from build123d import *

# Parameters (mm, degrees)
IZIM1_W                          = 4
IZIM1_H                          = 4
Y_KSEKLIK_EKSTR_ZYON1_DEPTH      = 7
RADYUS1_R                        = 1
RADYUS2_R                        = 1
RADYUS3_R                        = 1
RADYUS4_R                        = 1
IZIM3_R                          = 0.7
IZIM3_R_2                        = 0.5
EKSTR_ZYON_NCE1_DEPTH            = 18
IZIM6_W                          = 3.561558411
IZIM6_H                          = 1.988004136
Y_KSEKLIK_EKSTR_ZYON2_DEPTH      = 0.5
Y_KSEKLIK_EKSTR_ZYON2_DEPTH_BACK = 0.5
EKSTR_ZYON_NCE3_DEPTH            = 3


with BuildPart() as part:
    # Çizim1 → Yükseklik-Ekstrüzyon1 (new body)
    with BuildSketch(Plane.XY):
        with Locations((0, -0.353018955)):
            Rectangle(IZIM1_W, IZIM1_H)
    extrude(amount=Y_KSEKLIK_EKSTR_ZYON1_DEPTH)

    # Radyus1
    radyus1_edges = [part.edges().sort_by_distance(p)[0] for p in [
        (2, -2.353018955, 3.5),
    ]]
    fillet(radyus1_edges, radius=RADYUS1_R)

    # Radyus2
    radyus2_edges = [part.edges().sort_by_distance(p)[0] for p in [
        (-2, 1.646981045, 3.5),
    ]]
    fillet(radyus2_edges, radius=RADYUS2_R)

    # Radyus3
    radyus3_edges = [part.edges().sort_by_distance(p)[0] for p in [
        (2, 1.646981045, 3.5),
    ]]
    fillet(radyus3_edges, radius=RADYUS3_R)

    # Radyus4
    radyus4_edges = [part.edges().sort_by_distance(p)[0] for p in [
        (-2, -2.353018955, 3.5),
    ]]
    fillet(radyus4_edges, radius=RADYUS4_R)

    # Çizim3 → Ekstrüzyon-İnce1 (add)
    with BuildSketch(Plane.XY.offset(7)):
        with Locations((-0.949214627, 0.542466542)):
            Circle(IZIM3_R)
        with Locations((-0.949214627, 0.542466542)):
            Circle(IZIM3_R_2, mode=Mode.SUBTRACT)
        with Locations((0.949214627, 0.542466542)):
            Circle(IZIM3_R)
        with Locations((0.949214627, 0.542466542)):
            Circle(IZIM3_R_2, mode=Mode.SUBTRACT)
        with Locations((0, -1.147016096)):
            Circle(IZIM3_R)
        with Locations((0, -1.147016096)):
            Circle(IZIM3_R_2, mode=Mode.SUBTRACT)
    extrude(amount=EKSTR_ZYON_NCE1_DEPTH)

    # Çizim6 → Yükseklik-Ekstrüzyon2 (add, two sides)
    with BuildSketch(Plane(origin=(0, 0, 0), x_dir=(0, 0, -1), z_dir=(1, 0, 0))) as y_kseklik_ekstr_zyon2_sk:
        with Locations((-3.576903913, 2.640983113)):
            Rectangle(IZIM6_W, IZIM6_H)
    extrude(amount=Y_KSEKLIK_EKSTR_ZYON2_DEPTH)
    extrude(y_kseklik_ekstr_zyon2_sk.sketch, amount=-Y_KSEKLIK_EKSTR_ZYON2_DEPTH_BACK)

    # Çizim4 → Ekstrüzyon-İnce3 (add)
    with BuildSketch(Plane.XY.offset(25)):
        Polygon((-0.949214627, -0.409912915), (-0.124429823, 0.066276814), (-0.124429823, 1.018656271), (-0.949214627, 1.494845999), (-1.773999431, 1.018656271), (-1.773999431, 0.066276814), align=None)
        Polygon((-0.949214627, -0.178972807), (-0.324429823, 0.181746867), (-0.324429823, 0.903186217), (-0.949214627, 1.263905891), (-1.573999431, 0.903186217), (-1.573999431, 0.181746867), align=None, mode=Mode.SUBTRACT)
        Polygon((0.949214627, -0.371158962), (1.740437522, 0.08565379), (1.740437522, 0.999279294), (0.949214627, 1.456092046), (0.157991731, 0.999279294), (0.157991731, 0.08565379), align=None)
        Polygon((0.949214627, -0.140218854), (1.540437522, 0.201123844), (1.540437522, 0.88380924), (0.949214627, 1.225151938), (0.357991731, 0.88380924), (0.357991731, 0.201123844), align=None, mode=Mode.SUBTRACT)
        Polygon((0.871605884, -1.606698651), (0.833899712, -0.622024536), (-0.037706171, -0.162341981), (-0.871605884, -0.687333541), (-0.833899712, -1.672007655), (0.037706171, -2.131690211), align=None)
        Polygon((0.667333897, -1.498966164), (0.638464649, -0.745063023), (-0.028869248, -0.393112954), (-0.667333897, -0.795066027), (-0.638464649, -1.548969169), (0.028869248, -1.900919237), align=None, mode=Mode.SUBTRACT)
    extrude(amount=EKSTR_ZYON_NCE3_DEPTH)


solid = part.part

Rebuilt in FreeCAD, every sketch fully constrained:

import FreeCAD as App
import Part
import Sketcher
Q = App.Units.Quantity


def edges_at(feature, points):
    """Names of the edges that pass closest to the given points."""
    edges = feature.Shape.Edges
    near = lambda p: min(range(len(edges)), key=lambda i: edges[i].distToShape(Part.Vertex(*p))[0])
    return sorted({f"Edge{near(p) + 1}" for p in points})

doc = App.newDocument("Part")
body = doc.addObject("PartDesign::Body", "Body")

sketch1 = body.newObject("Sketcher::SketchObject", "Sketch")
sketch1.AttachmentSupport = (doc.getObject("XY_Plane"), [""])
sketch1.MapMode = "FlatFace"
sketch1.addGeometry([
    Part.LineSegment(App.Vector(-2, 1.6, 0), App.Vector(-2, -2.4, 0)),
    Part.LineSegment(App.Vector(-2, -2.4, 0), App.Vector(2, -2.4, 0)),
    Part.LineSegment(App.Vector(2, -2.4, 0), App.Vector(2, 1.6, 0)),
    Part.LineSegment(App.Vector(2, 1.6, 0), App.Vector(-2, 1.6, 0)),
], False)
sketch1.addConstraint([
    Sketcher.Constraint("Coincident", 0, 2, 1, 1),
    Sketcher.Constraint("Coincident", 1, 2, 2, 1),
    Sketcher.Constraint("Coincident", 2, 2, 3, 1),
    Sketcher.Constraint("Coincident", 3, 2, 0, 1),
    Sketcher.Constraint("Vertical", 0),
    Sketcher.Constraint("Horizontal", 1),
    Sketcher.Constraint("Vertical", 2),
    Sketcher.Constraint("Horizontal", 3),
    Sketcher.Constraint("Equal", 3, 0),
    Sketcher.Constraint("DistanceX", 1, 1, 1, 2, 4.0),
    Sketcher.Constraint("DistanceX", 0, 2, -1, 1, 2.0),
    Sketcher.Constraint("DistanceY", 0, 2, -1, 1, 2.353019),
])
pad1 = body.newObject("PartDesign::Pad", "Pad")
pad1.Profile = sketch1
pad1.Length = 7
doc.recompute()

fillet = body.newObject("PartDesign::Fillet", "Fillet")
fillet.Base = (pad1, edges_at(pad1, [(2, -2.353, 3.5)]))
fillet.Radius = 1
doc.recompute()

fillet2 = body.newObject("PartDesign::Fillet", "Fillet001")
fillet2.Base = (fillet, edges_at(fillet, [(-2, 1.647, 3.5)]))
fillet2.Radius = 1
doc.recompute()

fillet3 = body.newObject("PartDesign::Fillet", "Fillet002")
fillet3.Base = (fillet2, edges_at(fillet2, [(2, 1.647, 3.5)]))
fillet3.Radius = 1
doc.recompute()

fillet4 = body.newObject("PartDesign::Fillet", "Fillet003")
fillet4.Base = (fillet3, edges_at(fillet3, [(-2, -2.353, 3.5)]))
fillet4.Radius = 1

sketch2 = body.newObject("Sketcher::SketchObject", "Sketch001")
sketch2.AttachmentSupport = (doc.getObject("XY_Plane"), [""])
sketch2.MapMode = "FlatFace"
sketch2.AttachmentOffset = App.Placement(App.Vector(0, 0, 7), App.Rotation())
sketch2.addGeometry([
    Part.Circle(App.Vector(-0.9, 0.5, 0), App.Vector(0, 0, 1), 0.7),
    Part.Circle(App.Vector(-0.9, 0.5, 0), App.Vector(0, 0, 1), 0.5),
    Part.Circle(App.Vector(0.9, 0.5, 0), App.Vector(0, 0, 1), 0.7),
    Part.Circle(App.Vector(0.9, 0.5, 0), App.Vector(0, 0, 1), 0.5),
    Part.Circle(App.Vector(0, -1.1, 0), App.Vector(0, 0, 1), 0.7),
    Part.Circle(App.Vector(0, -1.1, 0), App.Vector(0, 0, 1), 0.5),
], False)
sketch2.addConstraint([
    Sketcher.Constraint("Coincident", 1, 3, 0, 3),
    Sketcher.Constraint("Coincident", 3, 3, 2, 3),
    Sketcher.Constraint("Coincident", 5, 3, 4, 3),
    Sketcher.Constraint("Equal", 0, 2),
    Sketcher.Constraint("Equal", 1, 3),
    Sketcher.Constraint("Equal", 2, 4),
    Sketcher.Constraint("Equal", 3, 5),
    Sketcher.Constraint("Symmetric", 0, 3, 2, 3, -2),
    Sketcher.Constraint("PointOnObject", 4, 3, -2),
    Sketcher.Constraint("Diameter", 1, 1.0),
    Sketcher.Constraint("Diameter", 0, 1.4),
    Sketcher.Constraint("DistanceX", 0, 3, 2, 3, 1.898429),
    Sketcher.Constraint("DistanceY", -1, 1, 0, 3, 0.542467),
    Sketcher.Constraint("DistanceY", 4, 3, -1, 1, 1.147016),
])
pad2 = body.newObject("PartDesign::Pad", "Pad001")
pad2.Profile = sketch2
pad2.Length = 18

sketch3 = body.newObject("Sketcher::SketchObject", "Sketch002")
sketch3.AttachmentSupport = (doc.getObject("YZ_Plane"), [""])
sketch3.MapMode = "FlatFace"
sketch3.addGeometry([
    Part.LineSegment(App.Vector(3.6, 5.4, 0), App.Vector(1.6, 5.4, 0)),
    Part.LineSegment(App.Vector(1.6, 5.4, 0), App.Vector(1.6, 1.8, 0)),
    Part.LineSegment(App.Vector(1.6, 1.8, 0), App.Vector(3.6, 1.8, 0)),
    Part.LineSegment(App.Vector(3.6, 1.8, 0), App.Vector(3.6, 5.4, 0)),
], False)
sketch3.addConstraint([
    Sketcher.Constraint("Coincident", 0, 2, 1, 1),
    Sketcher.Constraint("Coincident", 1, 2, 2, 1),
    Sketcher.Constraint("Coincident", 2, 2, 3, 1),
    Sketcher.Constraint("Coincident", 3, 2, 0, 1),
    Sketcher.Constraint("Horizontal", 0),
    Sketcher.Constraint("Vertical", 1),
    Sketcher.Constraint("Horizontal", 2),
    Sketcher.Constraint("Vertical", 3),
    Sketcher.Constraint("DistanceY", 1, 2, 1, 1, 3.561558),
    Sketcher.Constraint("DistanceX", 0, 2, 0, 1, 1.988004),
    Sketcher.Constraint("DistanceX", -1, 1, 0, 2, 1.646981),
    Sketcher.Constraint("DistanceY", -1, 1, 0, 2, 5.357683),
])
pad3 = body.newObject("PartDesign::Pad", "Pad002")
pad3.Profile = sketch3
pad3.Type = "TwoLengths"
pad3.Length = 0.5
pad3.Length2 = 0.5

sketch4 = body.newObject("Sketcher::SketchObject", "Sketch003")
sketch4.AttachmentSupport = (doc.getObject("XY_Plane"), [""])
sketch4.MapMode = "FlatFace"
sketch4.AttachmentOffset = App.Placement(App.Vector(0, 0, 25), App.Rotation())
sketch4.addGeometry([
    Part.LineSegment(App.Vector(-0.9, -0.4, 0), App.Vector(-0.1, 0.1, 0)),
    Part.LineSegment(App.Vector(-0.1, 0.1, 0), App.Vector(-0.1, 1, 0)),
    Part.LineSegment(App.Vector(-0.1, 1, 0), App.Vector(-0.9, 1.5, 0)),
    Part.LineSegment(App.Vector(-0.9, 1.5, 0), App.Vector(-1.8, 1, 0)),
    Part.LineSegment(App.Vector(-1.8, 1, 0), App.Vector(-1.8, 0.1, 0)),
    Part.LineSegment(App.Vector(-1.8, 0.1, 0), App.Vector(-0.9, -0.4, 0)),
    Part.LineSegment(App.Vector(-0.3, 0.2, 0), App.Vector(-0.9, -0.2, 0)),
    Part.LineSegment(App.Vector(-0.9, -0.2, 0), App.Vector(-1.6, 0.2, 0)),
    Part.LineSegment(App.Vector(-1.6, 0.2, 0), App.Vector(-1.6, 0.9, 0)),
    Part.LineSegment(App.Vector(-1.6, 0.9, 0), App.Vector(-0.9, 1.3, 0)),
    Part.LineSegment(App.Vector(-0.9, 1.3, 0), App.Vector(-0.3, 0.9, 0)),
    Part.LineSegment(App.Vector(-0.3, 0.9, 0), App.Vector(-0.3, 0.2, 0)),
    Part.LineSegment(App.Vector(0.9, -0.4, 0), App.Vector(1.7, 0.1, 0)),
    Part.LineSegment(App.Vector(1.7, 0.1, 0), App.Vector(1.7, 1, 0)),
    Part.LineSegment(App.Vector(1.7, 1, 0), App.Vector(0.9, 1.5, 0)),
    Part.LineSegment(App.Vector(0.9, 1.5, 0), App.Vector(0.2, 1, 0)),
    Part.LineSegment(App.Vector(0.2, 1, 0), App.Vector(0.2, 0.1, 0)),
    Part.LineSegment(App.Vector(0.2, 0.1, 0), App.Vector(0.9, -0.4, 0)),
    Part.LineSegment(App.Vector(1.5, 0.2, 0), App.Vector(0.9, -0.1, 0)),
    Part.LineSegment(App.Vector(0.9, -0.1, 0), App.Vector(0.4, 0.2, 0)),
    Part.LineSegment(App.Vector(0.4, 0.2, 0), App.Vector(0.4, 0.9, 0)),
    Part.LineSegment(App.Vector(0.4, 0.9, 0), App.Vector(0.9, 1.2, 0)),
    Part.LineSegment(App.Vector(0.9, 1.2, 0), App.Vector(1.5, 0.9, 0)),
    Part.LineSegment(App.Vector(1.5, 0.9, 0), App.Vector(1.5, 0.2, 0)),
    Part.LineSegment(App.Vector(0.9, -1.6, 0), App.Vector(0.8, -0.6, 0)),
    Part.LineSegment(App.Vector(0.8, -0.6, 0), App.Vector(0, -0.2, 0)),
    Part.LineSegment(App.Vector(0, -0.2, 0), App.Vector(-0.9, -0.7, 0)),
    Part.LineSegment(App.Vector(-0.9, -0.7, 0), App.Vector(-0.8, -1.7, 0)),
    Part.LineSegment(App.Vector(-0.8, -1.7, 0), App.Vector(0, -2.1, 0)),
    Part.LineSegment(App.Vector(0, -2.1, 0), App.Vector(0.9, -1.6, 0)),
    Part.LineSegment(App.Vector(0.6, -0.7, 0), App.Vector(0.7, -1.5, 0)),
    Part.LineSegment(App.Vector(0.7, -1.5, 0), App.Vector(0, -1.9, 0)),
    Part.LineSegment(App.Vector(0, -1.9, 0), App.Vector(-0.6, -1.5, 0)),
    Part.LineSegment(App.Vector(-0.6, -1.5, 0), App.Vector(-0.7, -0.8, 0)),
    Part.LineSegment(App.Vector(-0.7, -0.8, 0), App.Vector(0, -0.4, 0)),
    Part.LineSegment(App.Vector(0, -0.4, 0), App.Vector(0.6, -0.7, 0)),
], False)
sketch4.addConstraint([
    Sketcher.Constraint("Coincident", 0, 2, 1, 1),
    Sketcher.Constraint("Coincident", 1, 2, 2, 1),
    Sketcher.Constraint("Coincident", 2, 2, 3, 1),
    Sketcher.Constraint("Coincident", 3, 2, 4, 1),
    Sketcher.Constraint("Coincident", 4, 2, 5, 1),
    Sketcher.Constraint("Coincident", 5, 2, 0, 1),
    Sketcher.Constraint("Coincident", 6, 2, 7, 1),
    Sketcher.Constraint("Coincident", 7, 2, 8, 1),
    Sketcher.Constraint("Coincident", 8, 2, 9, 1),
    Sketcher.Constraint("Coincident", 9, 2, 10, 1),
    Sketcher.Constraint("Coincident", 10, 2, 11, 1),
    Sketcher.Constraint("Coincident", 11, 2, 6, 1),
    Sketcher.Constraint("Coincident", 12, 2, 13, 1),
    Sketcher.Constraint("Coincident", 13, 2, 14, 1),
    Sketcher.Constraint("Coincident", 14, 2, 15, 1),
    Sketcher.Constraint("Coincident", 15, 2, 16, 1),
    Sketcher.Constraint("Coincident", 16, 2, 17, 1),
    Sketcher.Constraint("Coincident", 17, 2, 12, 1),
    Sketcher.Constraint("Coincident", 18, 2, 19, 1),
    Sketcher.Constraint("Coincident", 19, 2, 20, 1),
    Sketcher.Constraint("Coincident", 20, 2, 21, 1),
    Sketcher.Constraint("Coincident", 21, 2, 22, 1),
    Sketcher.Constraint("Coincident", 22, 2, 23, 1),
    Sketcher.Constraint("Coincident", 23, 2, 18, 1),
    Sketcher.Constraint("Coincident", 24, 2, 25, 1),
    Sketcher.Constraint("Coincident", 25, 2, 26, 1),
    Sketcher.Constraint("Coincident", 26, 2, 27, 1),
    Sketcher.Constraint("Coincident", 27, 2, 28, 1),
    Sketcher.Constraint("Coincident", 28, 2, 29, 1),
    Sketcher.Constraint("Coincident", 29, 2, 24, 1),
    Sketcher.Constraint("Coincident", 30, 2, 31, 1),
    Sketcher.Constraint("Coincident", 31, 2, 32, 1),
    Sketcher.Constraint("Coincident", 32, 2, 33, 1),
    Sketcher.Constraint("Coincident", 33, 2, 34, 1),
    Sketcher.Constraint("Coincident", 34, 2, 35, 1),
    Sketcher.Constraint("Coincident", 35, 2, 30, 1),
    Sketcher.Constraint("Vertical", 1),
    Sketcher.Constraint("Vertical", 4),
    Sketcher.Constraint("Vertical", 8),
    Sketcher.Constraint("Vertical", 11),
    Sketcher.Constraint("Vertical", 13),
    Sketcher.Constraint("Vertical", 16),
    Sketcher.Constraint("Vertical", 20),
    Sketcher.Constraint("Vertical", 23),
    Sketcher.Constraint("Parallel", 0, 3),
    Sketcher.Constraint("Parallel", 2, 5),
    Sketcher.Constraint("Parallel", 3, 6),
    Sketcher.Constraint("Parallel", 5, 7),
    Sketcher.Constraint("Parallel", 6, 9),
    Sketcher.Constraint("Parallel", 7, 10),
    Sketcher.Constraint("Parallel", 9, 12),
    Sketcher.Constraint("Parallel", 10, 14),
    Sketcher.Constraint("Parallel", 12, 15),
    Sketcher.Constraint("Parallel", 14, 17),
    Sketcher.Constraint("Parallel", 15, 18),
    Sketcher.Constraint("Parallel", 17, 19),
    Sketcher.Constraint("Parallel", 18, 21),
    Sketcher.Constraint("Parallel", 19, 22),
    Sketcher.Constraint("Parallel", 24, 27),
    Sketcher.Constraint("Parallel", 25, 28),
    Sketcher.Constraint("Parallel", 26, 29),
    Sketcher.Constraint("Parallel", 27, 30),
    Sketcher.Constraint("Parallel", 29, 31),
    Sketcher.Constraint("Parallel", 28, 32),
    Sketcher.Constraint("Parallel", 30, 33),
    Sketcher.Constraint("Parallel", 31, 34),
    Sketcher.Constraint("Parallel", 32, 35),
    Sketcher.Constraint("Horizontal", 1, 2, 3, 2),
    Sketcher.Constraint("Horizontal", 0, 2, 4, 2),
    Sketcher.Constraint("Horizontal", 8, 2, 10, 2),
    Sketcher.Constraint("Horizontal", 7, 2, 11, 2),
    Sketcher.Constraint("Horizontal", 13, 2, 15, 2),
    Sketcher.Constraint("Horizontal", 12, 2, 16, 2),
    Sketcher.Constraint("Horizontal", 20, 2, 22, 2),
    Sketcher.Constraint("Horizontal", 19, 2, 23, 2),
    Sketcher.Constraint("Vertical", 2, 2, 5, 2),
    Sketcher.Constraint("Vertical", 5, 2, 6, 2),
    Sketcher.Constraint("Vertical", 17, 2, 18, 2),
    Sketcher.Constraint("Equal", 24, 25),
    Sketcher.Constraint("Equal", 25, 26),
    Sketcher.Constraint("Equal", 26, 27),
    Sketcher.Constraint("Equal", 30, 31),
    Sketcher.Constraint("Equal", 31, 32),
    Sketcher.Constraint("Equal", 32, 33),
    Sketcher.Constraint("Angle", 0, Q("30 deg")),
    Sketcher.Constraint("DistanceX", 4, 2, 7, 2, 0.2),
    Sketcher.Constraint("DistanceX", 16, 2, 19, 2, 0.2),
    Sketcher.Constraint("DistanceX", 3, 2, -1, 1, 1.773999),
    Sketcher.Constraint("DistanceY", 1, 1, 1, 2, 0.952379),
    Sketcher.Constraint("DistanceY", 8, 1, 8, 2, 0.721439),
    Sketcher.Constraint("DistanceX", -1, 1, 24, 2, 0.8339),
    Sketcher.Constraint("DistanceX", 27, 2, -1, 1, 0.8339),
    Sketcher.Constraint("DistanceY", 29, 2, -1, 1, 1.606699),
    Sketcher.Constraint("DistanceX", 26, 2, 25, 2, 0.8339),
    Sketcher.Constraint("Distance", 0, 0.952379),
    Sketcher.Constraint("DistanceY", 13, 1, 13, 2, 0.913626),
    Sketcher.Constraint("DistanceY", 20, 1, 20, 2, 0.682685),
    Sketcher.Constraint("DistanceY", -1, 1, 13, 2, 0.999279),
    Sketcher.Constraint("DistanceX", -1, 1, 15, 2, 0.157992),
    Sketcher.Constraint("DistanceY", 17, 2, -1, 1, 0.371159),
    Sketcher.Constraint("DistanceY", 18, 2, -1, 1, 0.140219),
    Sketcher.Constraint("DistanceY", 25, 2, -1, 1, 0.162342),
    Sketcher.Constraint("DistanceY", 28, 2, -1, 1, 2.13169),
    Sketcher.Constraint("DistanceX", -1, 1, 31, 2, 0.028869),
    Sketcher.Constraint("DistanceY", 31, 2, -1, 1, 1.900919),
    Sketcher.Constraint("DistanceY", 32, 2, -1, 1, 1.548969),
    Sketcher.Constraint("DistanceY", 5, 2, 6, 2, 0.23094),
    Sketcher.Constraint("DistanceY", 25, 2, 0, 2, 0.228619),
])
pad4 = body.newObject("PartDesign::Pad", "Pad003")
pad4.Profile = sketch4
pad4.Length = 3

doc.recompute()
